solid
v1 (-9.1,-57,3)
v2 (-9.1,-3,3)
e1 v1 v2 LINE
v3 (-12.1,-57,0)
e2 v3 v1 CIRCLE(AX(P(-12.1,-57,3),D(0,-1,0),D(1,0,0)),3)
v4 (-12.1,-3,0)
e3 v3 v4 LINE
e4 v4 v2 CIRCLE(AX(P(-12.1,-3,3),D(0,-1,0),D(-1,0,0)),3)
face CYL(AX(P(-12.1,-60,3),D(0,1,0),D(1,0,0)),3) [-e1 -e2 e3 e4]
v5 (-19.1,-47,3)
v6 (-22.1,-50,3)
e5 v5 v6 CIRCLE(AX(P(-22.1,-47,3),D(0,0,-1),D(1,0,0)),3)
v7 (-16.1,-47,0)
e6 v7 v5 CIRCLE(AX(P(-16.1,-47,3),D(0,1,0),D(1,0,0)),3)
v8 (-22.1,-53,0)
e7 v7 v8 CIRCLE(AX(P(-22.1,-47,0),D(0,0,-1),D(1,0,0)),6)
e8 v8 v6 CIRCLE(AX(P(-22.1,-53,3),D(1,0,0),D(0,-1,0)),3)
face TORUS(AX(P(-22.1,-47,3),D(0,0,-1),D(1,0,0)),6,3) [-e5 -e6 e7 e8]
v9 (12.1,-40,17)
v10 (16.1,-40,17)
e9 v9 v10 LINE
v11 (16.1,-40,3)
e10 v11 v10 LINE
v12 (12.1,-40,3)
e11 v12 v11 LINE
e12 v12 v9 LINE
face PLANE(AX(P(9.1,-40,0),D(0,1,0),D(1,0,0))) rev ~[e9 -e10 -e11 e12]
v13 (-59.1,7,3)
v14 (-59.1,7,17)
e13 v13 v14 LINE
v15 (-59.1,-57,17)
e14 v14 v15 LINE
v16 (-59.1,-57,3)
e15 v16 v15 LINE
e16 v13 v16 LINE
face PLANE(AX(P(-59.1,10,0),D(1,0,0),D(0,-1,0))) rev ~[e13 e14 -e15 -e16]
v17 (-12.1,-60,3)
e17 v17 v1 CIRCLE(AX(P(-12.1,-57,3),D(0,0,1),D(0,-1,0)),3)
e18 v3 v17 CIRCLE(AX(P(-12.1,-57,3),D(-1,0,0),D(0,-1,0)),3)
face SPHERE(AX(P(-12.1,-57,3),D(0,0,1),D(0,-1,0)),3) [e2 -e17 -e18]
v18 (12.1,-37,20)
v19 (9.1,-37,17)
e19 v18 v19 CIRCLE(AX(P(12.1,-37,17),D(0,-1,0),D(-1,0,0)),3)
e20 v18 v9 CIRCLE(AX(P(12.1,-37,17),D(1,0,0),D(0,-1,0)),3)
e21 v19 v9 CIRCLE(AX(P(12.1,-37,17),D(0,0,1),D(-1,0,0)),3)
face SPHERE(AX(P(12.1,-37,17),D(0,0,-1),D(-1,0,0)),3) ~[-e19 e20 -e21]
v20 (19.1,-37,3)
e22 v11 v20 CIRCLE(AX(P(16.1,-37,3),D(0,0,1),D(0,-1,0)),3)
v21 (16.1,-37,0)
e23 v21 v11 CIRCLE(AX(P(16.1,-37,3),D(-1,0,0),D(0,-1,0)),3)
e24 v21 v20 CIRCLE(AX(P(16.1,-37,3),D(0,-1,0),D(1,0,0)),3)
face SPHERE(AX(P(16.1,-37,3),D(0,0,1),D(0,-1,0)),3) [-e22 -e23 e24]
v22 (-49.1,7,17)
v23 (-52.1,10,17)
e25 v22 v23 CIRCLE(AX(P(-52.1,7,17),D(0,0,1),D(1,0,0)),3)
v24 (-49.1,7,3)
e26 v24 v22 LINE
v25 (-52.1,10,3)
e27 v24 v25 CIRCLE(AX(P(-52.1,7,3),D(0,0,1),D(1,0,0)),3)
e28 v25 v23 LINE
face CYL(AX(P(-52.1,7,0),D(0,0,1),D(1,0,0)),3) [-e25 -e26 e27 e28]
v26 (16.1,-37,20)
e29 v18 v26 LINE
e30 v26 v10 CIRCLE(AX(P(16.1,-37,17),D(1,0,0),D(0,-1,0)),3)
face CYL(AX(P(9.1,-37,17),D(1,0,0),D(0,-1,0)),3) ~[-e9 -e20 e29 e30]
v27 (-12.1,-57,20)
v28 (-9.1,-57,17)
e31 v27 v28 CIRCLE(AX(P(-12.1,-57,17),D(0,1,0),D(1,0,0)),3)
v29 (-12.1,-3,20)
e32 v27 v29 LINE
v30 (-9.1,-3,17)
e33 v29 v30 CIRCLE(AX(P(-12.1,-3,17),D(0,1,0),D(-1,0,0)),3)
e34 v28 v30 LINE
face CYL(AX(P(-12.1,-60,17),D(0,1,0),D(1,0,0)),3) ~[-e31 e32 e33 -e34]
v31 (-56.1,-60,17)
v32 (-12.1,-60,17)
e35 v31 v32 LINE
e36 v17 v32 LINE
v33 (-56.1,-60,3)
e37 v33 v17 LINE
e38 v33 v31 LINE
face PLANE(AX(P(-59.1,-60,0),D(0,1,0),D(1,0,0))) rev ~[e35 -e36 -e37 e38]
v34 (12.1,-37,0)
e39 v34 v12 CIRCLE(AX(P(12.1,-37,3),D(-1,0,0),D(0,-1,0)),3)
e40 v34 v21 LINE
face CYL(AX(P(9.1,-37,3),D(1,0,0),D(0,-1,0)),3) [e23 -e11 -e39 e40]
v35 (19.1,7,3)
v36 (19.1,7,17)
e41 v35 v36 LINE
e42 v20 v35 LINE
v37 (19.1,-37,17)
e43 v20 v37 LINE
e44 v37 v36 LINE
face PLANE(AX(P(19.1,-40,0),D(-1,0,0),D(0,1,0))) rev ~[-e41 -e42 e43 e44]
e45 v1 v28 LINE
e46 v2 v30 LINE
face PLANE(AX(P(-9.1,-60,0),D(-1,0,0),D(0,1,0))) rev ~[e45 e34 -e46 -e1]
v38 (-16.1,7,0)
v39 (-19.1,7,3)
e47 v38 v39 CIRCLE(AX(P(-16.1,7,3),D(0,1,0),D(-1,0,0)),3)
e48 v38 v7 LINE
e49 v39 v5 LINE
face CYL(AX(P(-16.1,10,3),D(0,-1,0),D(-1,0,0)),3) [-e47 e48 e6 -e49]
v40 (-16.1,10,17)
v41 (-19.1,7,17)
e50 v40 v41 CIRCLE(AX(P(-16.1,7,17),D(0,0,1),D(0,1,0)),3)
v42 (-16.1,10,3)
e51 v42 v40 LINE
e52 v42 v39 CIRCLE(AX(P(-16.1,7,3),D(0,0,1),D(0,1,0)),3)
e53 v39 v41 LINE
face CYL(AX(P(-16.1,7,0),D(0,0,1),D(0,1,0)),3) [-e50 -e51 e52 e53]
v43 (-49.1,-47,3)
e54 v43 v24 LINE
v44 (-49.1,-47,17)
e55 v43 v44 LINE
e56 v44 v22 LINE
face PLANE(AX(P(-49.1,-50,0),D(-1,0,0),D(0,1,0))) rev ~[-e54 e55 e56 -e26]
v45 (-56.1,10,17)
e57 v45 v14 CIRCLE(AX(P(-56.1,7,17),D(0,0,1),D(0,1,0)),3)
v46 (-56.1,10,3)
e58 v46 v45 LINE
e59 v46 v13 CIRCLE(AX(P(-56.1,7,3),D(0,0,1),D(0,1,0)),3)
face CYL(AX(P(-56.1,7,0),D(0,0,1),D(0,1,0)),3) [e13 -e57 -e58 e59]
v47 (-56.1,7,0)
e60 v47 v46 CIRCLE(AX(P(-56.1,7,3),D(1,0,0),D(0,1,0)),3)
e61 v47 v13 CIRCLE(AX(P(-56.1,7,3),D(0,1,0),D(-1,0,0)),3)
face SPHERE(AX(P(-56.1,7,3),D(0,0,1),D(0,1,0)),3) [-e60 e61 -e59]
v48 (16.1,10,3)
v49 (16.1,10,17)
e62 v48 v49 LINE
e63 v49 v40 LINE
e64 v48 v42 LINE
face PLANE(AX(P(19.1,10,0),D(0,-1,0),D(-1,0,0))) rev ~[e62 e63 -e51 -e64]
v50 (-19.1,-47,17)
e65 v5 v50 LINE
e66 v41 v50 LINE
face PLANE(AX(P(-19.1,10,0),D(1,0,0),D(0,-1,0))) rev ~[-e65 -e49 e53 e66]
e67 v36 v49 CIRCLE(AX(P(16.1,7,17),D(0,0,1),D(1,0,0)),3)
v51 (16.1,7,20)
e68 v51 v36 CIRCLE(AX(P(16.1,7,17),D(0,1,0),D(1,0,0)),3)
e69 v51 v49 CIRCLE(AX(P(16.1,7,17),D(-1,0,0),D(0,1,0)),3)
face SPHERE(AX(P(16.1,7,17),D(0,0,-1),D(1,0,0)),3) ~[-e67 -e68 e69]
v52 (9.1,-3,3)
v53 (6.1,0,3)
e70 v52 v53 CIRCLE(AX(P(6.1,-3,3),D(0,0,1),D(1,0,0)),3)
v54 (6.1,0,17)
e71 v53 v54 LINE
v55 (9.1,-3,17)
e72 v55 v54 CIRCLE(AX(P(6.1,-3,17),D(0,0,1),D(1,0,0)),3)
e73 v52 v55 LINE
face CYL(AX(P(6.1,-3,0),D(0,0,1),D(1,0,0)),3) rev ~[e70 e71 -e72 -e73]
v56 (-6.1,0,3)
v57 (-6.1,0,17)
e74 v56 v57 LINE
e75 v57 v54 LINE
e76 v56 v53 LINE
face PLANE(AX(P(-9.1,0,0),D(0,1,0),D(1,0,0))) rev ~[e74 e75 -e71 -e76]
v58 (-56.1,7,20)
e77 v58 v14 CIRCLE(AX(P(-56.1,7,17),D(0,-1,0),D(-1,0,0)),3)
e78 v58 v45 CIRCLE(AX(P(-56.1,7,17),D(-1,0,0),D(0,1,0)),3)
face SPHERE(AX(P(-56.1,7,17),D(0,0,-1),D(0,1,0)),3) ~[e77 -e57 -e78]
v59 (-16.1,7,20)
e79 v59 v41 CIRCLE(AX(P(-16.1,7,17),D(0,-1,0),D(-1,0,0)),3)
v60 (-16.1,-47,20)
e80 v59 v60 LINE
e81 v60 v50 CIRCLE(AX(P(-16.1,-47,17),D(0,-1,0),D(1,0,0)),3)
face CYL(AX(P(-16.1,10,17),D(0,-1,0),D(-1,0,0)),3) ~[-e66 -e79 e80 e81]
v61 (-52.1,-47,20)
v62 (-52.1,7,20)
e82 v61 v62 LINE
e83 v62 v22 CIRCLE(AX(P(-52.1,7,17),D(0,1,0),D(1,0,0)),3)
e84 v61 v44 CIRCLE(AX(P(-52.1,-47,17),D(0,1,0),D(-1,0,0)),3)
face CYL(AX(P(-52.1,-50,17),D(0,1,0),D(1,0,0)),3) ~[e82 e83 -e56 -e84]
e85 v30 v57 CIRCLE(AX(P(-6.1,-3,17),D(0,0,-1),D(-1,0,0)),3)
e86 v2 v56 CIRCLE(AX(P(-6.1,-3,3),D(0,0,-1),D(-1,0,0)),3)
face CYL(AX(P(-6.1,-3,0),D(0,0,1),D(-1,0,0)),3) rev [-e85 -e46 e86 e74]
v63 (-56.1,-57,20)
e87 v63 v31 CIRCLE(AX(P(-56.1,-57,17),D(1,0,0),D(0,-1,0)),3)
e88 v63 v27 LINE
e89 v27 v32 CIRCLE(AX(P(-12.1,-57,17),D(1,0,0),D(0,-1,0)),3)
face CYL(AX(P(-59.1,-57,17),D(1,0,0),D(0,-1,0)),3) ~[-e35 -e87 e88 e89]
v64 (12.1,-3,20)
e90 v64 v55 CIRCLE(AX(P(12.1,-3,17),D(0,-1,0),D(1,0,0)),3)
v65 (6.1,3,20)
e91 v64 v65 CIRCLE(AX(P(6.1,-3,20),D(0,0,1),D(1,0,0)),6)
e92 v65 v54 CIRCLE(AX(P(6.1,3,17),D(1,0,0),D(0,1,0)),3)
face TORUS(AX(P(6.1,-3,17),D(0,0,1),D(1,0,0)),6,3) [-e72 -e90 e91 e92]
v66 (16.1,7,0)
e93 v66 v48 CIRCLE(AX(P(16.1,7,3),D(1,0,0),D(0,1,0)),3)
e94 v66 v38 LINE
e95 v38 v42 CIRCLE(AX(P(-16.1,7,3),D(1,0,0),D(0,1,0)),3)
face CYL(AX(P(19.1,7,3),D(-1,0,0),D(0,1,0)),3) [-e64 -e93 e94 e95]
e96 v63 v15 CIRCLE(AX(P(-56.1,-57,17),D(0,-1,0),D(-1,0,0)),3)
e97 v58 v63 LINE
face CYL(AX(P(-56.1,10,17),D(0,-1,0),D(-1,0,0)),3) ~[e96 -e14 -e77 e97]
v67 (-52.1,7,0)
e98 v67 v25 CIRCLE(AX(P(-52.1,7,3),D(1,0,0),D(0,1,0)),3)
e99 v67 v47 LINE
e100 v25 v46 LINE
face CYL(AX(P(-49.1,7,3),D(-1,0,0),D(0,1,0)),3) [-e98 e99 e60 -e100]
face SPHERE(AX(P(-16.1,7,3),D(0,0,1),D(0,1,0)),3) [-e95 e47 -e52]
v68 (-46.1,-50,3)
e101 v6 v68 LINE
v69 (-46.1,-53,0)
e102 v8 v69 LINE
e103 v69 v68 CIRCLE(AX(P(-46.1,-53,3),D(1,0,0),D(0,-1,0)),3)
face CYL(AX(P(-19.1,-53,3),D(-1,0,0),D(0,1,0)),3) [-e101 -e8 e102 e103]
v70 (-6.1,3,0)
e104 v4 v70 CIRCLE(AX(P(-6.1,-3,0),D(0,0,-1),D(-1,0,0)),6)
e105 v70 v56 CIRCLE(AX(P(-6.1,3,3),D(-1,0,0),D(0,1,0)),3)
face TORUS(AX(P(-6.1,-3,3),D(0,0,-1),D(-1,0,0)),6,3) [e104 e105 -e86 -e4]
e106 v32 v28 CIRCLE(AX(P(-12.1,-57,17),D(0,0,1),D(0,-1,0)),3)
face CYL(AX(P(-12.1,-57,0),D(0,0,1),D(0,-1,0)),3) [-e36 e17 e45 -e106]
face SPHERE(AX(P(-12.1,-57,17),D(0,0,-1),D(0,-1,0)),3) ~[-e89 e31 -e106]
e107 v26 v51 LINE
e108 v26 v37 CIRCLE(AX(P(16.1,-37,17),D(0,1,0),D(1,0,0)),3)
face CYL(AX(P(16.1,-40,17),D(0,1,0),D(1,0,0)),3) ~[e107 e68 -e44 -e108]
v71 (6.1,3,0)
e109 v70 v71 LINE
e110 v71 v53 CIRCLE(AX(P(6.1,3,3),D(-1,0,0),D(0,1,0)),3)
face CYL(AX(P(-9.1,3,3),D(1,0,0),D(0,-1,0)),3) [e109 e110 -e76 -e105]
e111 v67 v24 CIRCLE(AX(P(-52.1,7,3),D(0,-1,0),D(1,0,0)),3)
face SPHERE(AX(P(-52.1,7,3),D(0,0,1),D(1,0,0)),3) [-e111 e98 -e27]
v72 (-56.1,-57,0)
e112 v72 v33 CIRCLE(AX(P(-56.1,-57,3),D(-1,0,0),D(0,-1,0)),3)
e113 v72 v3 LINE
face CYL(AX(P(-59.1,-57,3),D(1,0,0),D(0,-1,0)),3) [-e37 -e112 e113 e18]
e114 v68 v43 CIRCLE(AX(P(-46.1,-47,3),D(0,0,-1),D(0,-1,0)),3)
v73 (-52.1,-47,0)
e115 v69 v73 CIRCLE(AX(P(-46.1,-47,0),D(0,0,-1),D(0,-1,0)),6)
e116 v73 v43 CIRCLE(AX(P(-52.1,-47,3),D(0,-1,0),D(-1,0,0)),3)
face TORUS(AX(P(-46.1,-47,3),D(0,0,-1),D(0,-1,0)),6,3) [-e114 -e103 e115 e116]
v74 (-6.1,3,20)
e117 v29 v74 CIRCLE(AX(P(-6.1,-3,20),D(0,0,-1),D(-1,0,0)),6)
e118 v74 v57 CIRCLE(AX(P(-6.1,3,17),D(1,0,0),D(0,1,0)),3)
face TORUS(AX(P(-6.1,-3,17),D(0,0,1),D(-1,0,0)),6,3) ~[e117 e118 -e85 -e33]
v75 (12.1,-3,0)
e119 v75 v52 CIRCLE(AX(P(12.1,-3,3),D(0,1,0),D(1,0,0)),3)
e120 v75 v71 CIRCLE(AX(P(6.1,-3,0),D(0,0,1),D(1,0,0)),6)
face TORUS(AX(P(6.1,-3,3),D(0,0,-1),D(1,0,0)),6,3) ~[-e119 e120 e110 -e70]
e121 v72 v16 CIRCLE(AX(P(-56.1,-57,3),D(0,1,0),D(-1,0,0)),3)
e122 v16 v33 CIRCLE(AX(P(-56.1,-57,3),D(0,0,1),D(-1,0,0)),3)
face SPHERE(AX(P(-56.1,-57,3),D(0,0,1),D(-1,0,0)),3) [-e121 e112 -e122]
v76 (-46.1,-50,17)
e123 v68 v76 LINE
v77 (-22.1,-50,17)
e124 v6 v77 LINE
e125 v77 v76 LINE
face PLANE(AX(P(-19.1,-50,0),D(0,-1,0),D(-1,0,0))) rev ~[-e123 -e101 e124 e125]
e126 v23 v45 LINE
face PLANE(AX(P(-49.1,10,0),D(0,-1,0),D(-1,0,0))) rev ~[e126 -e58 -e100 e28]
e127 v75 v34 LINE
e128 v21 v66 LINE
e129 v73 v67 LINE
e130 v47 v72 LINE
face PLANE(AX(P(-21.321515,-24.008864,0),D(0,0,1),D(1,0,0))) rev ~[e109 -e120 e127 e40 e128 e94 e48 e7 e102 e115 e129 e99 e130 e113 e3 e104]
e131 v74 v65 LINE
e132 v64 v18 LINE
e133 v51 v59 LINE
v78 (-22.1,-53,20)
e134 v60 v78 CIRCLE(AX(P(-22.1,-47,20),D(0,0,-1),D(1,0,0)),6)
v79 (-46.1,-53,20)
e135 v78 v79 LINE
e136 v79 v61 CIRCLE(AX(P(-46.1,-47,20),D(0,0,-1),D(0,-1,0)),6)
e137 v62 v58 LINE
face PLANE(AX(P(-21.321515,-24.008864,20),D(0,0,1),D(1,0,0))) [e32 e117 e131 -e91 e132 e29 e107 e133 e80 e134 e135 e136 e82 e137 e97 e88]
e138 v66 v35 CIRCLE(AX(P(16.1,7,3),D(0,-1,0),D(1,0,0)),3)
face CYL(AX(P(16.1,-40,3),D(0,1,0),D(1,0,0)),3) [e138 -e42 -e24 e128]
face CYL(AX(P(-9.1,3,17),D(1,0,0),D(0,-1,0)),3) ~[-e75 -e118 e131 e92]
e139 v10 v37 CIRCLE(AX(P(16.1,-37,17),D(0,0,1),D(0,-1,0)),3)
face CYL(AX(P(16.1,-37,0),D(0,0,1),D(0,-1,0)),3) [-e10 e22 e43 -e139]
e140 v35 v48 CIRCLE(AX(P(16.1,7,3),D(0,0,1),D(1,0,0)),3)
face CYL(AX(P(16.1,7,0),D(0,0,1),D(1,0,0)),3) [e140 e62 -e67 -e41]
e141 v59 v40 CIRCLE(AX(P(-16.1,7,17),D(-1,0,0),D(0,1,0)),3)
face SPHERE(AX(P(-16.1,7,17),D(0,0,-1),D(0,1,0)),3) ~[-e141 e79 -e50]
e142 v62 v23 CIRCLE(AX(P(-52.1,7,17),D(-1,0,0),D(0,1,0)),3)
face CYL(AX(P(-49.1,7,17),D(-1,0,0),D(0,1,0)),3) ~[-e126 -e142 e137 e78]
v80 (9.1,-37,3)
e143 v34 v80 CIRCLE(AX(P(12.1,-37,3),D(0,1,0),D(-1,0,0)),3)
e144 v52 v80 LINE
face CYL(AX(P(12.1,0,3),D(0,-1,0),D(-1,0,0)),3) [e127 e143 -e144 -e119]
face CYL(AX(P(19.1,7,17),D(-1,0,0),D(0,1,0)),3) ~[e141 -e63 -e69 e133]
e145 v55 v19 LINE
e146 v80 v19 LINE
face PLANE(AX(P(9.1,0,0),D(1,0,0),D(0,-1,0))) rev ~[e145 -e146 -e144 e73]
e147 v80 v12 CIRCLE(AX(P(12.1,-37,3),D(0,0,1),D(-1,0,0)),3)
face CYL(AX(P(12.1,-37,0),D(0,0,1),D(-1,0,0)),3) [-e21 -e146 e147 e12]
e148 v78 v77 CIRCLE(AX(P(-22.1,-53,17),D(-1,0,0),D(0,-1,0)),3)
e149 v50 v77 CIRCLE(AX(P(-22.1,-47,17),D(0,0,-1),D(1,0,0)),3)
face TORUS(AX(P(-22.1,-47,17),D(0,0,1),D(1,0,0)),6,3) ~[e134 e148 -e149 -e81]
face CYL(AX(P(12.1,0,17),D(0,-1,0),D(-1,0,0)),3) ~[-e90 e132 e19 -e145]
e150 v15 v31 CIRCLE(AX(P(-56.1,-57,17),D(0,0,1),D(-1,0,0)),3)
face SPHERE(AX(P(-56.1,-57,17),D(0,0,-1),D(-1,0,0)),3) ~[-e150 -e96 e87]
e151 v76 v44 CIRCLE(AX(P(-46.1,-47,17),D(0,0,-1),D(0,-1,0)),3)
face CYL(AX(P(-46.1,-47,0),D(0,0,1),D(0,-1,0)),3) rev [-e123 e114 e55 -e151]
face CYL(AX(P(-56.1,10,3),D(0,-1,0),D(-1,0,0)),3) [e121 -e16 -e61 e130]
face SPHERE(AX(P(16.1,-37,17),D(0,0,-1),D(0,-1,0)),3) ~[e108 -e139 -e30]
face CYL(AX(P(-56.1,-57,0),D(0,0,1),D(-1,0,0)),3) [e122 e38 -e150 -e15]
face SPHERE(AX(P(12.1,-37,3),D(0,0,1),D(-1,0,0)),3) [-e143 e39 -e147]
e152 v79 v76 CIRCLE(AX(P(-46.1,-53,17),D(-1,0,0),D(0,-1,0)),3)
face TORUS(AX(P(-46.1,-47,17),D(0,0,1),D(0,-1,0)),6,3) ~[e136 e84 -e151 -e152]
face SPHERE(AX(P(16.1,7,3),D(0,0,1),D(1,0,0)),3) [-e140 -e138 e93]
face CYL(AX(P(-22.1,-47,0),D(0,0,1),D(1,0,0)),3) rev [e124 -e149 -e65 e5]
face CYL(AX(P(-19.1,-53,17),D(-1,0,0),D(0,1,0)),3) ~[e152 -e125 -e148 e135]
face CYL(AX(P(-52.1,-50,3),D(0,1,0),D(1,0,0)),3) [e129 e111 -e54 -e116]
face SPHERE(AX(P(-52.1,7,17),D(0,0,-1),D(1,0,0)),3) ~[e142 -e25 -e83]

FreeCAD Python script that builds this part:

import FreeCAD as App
import Part
import Sketcher

doc = App.newDocument("Part")
body = doc.addObject("PartDesign::Body", "Body")

# Sketch on XY plane
sketch1 = body.newObject("Sketcher::SketchObject", "Sketch")
sketch1.AttachmentSupport = (doc.getObject("XY_Plane"), [""])
sketch1.MapMode = "FlatFace"
sketch1.addGeometry(Part.LineSegment(App.Vector(9.1, 0, 0), App.Vector(9.1, -40, 0)), False)
sketch1.addGeometry(Part.LineSegment(App.Vector(9.1, -40, 0), App.Vector(19.1, -40, 0)), False)
sketch1.addGeometry(Part.LineSegment(App.Vector(19.1, -40, 0), App.Vector(19.1, 10, 0)), False)
sketch1.addGeometry(Part.LineSegment(App.Vector(19.1, 10, 0), App.Vector(-19.1, 10, 0)), False)
sketch1.addGeometry(Part.LineSegment(App.Vector(-19.1, 10, 0), App.Vector(-19.1, -50, 0)), False)
sketch1.addGeometry(Part.LineSegment(App.Vector(-19.1, -50, 0), App.Vector(-49.1, -50, 0)), False)
sketch1.addGeometry(Part.LineSegment(App.Vector(-49.1, -50, 0), App.Vector(-49.1, 10, 0)), False)
sketch1.addGeometry(Part.LineSegment(App.Vector(-49.1, 10, 0), App.Vector(-59.1, 10, 0)), False)
sketch1.addGeometry(Part.LineSegment(App.Vector(-59.1, 10, 0), App.Vector(-59.1, -60, 0)), False)
sketch1.addGeometry(Part.LineSegment(App.Vector(-59.1, -60, 0), App.Vector(-9.1, -60, 0)), False)
sketch1.addGeometry(Part.LineSegment(App.Vector(-9.1, -60, 0), App.Vector(-9.1, 0, 0)), False)
sketch1.addGeometry(Part.LineSegment(App.Vector(-9.1, 0, 0), App.Vector(9.1, 0, 0)), False)
sketch1.addConstraint(Sketcher.Constraint("Coincident", 0, 2, 1, 1))
sketch1.addConstraint(Sketcher.Constraint("Coincident", 1, 2, 2, 1))
sketch1.addConstraint(Sketcher.Constraint("Coincident", 2, 2, 3, 1))
sketch1.addConstraint(Sketcher.Constraint("Coincident", 3, 2, 4, 1))
sketch1.addConstraint(Sketcher.Constraint("Coincident", 4, 2, 5, 1))
sketch1.addConstraint(Sketcher.Constraint("Coincident", 5, 2, 6, 1))
sketch1.addConstraint(Sketcher.Constraint("Coincident", 6, 2, 7, 1))
sketch1.addConstraint(Sketcher.Constraint("Coincident", 7, 2, 8, 1))
sketch1.addConstraint(Sketcher.Constraint("Coincident", 8, 2, 9, 1))
sketch1.addConstraint(Sketcher.Constraint("Coincident", 9, 2, 10, 1))
sketch1.addConstraint(Sketcher.Constraint("Coincident", 10, 2, 11, 1))
sketch1.addConstraint(Sketcher.Constraint("Coincident", 11, 2, 0, 1))
sketch1.addConstraint(Sketcher.Constraint("Vertical", 0))
sketch1.addConstraint(Sketcher.Constraint("Horizontal", 1))
sketch1.addConstraint(Sketcher.Constraint("Vertical", 2))
sketch1.addConstraint(Sketcher.Constraint("Horizontal", 3))
sketch1.addConstraint(Sketcher.Constraint("Vertical", 4))
sketch1.addConstraint(Sketcher.Constraint("Horizontal", 5))
sketch1.addConstraint(Sketcher.Constraint("Vertical", 6))
sketch1.addConstraint(Sketcher.Constraint("Horizontal", 7))
sketch1.addConstraint(Sketcher.Constraint("Vertical", 8))
sketch1.addConstraint(Sketcher.Constraint("Horizontal", 9))
sketch1.addConstraint(Sketcher.Constraint("Vertical", 10))
sketch1.addConstraint(Sketcher.Constraint("Horizontal", 11))
sketch1.addConstraint(Sketcher.Constraint("Symmetric", 10, 2, 11, 2, -1, 1))
sketch1.addConstraint(Sketcher.Constraint("Horizontal", 3, 2, 6, 2))
sketch1.addConstraint(Sketcher.Constraint("Equal", 1, 7))
sketch1.addConstraint(Sketcher.Constraint("Equal", 9, 2))
sketch1.addConstraint(Sketcher.Constraint("Equal", 6, 10))
sketch1.addConstraint(Sketcher.Constraint("DistanceX", 1, 1, 1, 2, 10.0))
sketch1.addConstraint(Sketcher.Constraint("DistanceX", 5, 2, 5, 1, 30.0))
sketch1.addConstraint(Sketcher.Constraint("DistanceX", 9, 1, 9, 2, 50.0))
sketch1.addConstraint(Sketcher.Constraint("DistanceY", 0, 2, 0, 1, 40.0))
sketch1.addConstraint(Sketcher.Constraint("DistanceY", 4, 2, 4, 1, 60.0))
sketch1.addConstraint(Sketcher.Constraint("DistanceX", 3, 2, 3, 1, 38.2))
pad1 = body.newObject("PartDesign::Pad", "Pad")
pad1.Profile = sketch1
pad1.Length = 20
doc.recompute()

fillet = body.newObject("PartDesign::Fillet", "Fillet")
fillet.Base = (pad1, ["Edge1"])
fillet.UseAllEdges = True
fillet.Radius = 3

doc.recompute()
